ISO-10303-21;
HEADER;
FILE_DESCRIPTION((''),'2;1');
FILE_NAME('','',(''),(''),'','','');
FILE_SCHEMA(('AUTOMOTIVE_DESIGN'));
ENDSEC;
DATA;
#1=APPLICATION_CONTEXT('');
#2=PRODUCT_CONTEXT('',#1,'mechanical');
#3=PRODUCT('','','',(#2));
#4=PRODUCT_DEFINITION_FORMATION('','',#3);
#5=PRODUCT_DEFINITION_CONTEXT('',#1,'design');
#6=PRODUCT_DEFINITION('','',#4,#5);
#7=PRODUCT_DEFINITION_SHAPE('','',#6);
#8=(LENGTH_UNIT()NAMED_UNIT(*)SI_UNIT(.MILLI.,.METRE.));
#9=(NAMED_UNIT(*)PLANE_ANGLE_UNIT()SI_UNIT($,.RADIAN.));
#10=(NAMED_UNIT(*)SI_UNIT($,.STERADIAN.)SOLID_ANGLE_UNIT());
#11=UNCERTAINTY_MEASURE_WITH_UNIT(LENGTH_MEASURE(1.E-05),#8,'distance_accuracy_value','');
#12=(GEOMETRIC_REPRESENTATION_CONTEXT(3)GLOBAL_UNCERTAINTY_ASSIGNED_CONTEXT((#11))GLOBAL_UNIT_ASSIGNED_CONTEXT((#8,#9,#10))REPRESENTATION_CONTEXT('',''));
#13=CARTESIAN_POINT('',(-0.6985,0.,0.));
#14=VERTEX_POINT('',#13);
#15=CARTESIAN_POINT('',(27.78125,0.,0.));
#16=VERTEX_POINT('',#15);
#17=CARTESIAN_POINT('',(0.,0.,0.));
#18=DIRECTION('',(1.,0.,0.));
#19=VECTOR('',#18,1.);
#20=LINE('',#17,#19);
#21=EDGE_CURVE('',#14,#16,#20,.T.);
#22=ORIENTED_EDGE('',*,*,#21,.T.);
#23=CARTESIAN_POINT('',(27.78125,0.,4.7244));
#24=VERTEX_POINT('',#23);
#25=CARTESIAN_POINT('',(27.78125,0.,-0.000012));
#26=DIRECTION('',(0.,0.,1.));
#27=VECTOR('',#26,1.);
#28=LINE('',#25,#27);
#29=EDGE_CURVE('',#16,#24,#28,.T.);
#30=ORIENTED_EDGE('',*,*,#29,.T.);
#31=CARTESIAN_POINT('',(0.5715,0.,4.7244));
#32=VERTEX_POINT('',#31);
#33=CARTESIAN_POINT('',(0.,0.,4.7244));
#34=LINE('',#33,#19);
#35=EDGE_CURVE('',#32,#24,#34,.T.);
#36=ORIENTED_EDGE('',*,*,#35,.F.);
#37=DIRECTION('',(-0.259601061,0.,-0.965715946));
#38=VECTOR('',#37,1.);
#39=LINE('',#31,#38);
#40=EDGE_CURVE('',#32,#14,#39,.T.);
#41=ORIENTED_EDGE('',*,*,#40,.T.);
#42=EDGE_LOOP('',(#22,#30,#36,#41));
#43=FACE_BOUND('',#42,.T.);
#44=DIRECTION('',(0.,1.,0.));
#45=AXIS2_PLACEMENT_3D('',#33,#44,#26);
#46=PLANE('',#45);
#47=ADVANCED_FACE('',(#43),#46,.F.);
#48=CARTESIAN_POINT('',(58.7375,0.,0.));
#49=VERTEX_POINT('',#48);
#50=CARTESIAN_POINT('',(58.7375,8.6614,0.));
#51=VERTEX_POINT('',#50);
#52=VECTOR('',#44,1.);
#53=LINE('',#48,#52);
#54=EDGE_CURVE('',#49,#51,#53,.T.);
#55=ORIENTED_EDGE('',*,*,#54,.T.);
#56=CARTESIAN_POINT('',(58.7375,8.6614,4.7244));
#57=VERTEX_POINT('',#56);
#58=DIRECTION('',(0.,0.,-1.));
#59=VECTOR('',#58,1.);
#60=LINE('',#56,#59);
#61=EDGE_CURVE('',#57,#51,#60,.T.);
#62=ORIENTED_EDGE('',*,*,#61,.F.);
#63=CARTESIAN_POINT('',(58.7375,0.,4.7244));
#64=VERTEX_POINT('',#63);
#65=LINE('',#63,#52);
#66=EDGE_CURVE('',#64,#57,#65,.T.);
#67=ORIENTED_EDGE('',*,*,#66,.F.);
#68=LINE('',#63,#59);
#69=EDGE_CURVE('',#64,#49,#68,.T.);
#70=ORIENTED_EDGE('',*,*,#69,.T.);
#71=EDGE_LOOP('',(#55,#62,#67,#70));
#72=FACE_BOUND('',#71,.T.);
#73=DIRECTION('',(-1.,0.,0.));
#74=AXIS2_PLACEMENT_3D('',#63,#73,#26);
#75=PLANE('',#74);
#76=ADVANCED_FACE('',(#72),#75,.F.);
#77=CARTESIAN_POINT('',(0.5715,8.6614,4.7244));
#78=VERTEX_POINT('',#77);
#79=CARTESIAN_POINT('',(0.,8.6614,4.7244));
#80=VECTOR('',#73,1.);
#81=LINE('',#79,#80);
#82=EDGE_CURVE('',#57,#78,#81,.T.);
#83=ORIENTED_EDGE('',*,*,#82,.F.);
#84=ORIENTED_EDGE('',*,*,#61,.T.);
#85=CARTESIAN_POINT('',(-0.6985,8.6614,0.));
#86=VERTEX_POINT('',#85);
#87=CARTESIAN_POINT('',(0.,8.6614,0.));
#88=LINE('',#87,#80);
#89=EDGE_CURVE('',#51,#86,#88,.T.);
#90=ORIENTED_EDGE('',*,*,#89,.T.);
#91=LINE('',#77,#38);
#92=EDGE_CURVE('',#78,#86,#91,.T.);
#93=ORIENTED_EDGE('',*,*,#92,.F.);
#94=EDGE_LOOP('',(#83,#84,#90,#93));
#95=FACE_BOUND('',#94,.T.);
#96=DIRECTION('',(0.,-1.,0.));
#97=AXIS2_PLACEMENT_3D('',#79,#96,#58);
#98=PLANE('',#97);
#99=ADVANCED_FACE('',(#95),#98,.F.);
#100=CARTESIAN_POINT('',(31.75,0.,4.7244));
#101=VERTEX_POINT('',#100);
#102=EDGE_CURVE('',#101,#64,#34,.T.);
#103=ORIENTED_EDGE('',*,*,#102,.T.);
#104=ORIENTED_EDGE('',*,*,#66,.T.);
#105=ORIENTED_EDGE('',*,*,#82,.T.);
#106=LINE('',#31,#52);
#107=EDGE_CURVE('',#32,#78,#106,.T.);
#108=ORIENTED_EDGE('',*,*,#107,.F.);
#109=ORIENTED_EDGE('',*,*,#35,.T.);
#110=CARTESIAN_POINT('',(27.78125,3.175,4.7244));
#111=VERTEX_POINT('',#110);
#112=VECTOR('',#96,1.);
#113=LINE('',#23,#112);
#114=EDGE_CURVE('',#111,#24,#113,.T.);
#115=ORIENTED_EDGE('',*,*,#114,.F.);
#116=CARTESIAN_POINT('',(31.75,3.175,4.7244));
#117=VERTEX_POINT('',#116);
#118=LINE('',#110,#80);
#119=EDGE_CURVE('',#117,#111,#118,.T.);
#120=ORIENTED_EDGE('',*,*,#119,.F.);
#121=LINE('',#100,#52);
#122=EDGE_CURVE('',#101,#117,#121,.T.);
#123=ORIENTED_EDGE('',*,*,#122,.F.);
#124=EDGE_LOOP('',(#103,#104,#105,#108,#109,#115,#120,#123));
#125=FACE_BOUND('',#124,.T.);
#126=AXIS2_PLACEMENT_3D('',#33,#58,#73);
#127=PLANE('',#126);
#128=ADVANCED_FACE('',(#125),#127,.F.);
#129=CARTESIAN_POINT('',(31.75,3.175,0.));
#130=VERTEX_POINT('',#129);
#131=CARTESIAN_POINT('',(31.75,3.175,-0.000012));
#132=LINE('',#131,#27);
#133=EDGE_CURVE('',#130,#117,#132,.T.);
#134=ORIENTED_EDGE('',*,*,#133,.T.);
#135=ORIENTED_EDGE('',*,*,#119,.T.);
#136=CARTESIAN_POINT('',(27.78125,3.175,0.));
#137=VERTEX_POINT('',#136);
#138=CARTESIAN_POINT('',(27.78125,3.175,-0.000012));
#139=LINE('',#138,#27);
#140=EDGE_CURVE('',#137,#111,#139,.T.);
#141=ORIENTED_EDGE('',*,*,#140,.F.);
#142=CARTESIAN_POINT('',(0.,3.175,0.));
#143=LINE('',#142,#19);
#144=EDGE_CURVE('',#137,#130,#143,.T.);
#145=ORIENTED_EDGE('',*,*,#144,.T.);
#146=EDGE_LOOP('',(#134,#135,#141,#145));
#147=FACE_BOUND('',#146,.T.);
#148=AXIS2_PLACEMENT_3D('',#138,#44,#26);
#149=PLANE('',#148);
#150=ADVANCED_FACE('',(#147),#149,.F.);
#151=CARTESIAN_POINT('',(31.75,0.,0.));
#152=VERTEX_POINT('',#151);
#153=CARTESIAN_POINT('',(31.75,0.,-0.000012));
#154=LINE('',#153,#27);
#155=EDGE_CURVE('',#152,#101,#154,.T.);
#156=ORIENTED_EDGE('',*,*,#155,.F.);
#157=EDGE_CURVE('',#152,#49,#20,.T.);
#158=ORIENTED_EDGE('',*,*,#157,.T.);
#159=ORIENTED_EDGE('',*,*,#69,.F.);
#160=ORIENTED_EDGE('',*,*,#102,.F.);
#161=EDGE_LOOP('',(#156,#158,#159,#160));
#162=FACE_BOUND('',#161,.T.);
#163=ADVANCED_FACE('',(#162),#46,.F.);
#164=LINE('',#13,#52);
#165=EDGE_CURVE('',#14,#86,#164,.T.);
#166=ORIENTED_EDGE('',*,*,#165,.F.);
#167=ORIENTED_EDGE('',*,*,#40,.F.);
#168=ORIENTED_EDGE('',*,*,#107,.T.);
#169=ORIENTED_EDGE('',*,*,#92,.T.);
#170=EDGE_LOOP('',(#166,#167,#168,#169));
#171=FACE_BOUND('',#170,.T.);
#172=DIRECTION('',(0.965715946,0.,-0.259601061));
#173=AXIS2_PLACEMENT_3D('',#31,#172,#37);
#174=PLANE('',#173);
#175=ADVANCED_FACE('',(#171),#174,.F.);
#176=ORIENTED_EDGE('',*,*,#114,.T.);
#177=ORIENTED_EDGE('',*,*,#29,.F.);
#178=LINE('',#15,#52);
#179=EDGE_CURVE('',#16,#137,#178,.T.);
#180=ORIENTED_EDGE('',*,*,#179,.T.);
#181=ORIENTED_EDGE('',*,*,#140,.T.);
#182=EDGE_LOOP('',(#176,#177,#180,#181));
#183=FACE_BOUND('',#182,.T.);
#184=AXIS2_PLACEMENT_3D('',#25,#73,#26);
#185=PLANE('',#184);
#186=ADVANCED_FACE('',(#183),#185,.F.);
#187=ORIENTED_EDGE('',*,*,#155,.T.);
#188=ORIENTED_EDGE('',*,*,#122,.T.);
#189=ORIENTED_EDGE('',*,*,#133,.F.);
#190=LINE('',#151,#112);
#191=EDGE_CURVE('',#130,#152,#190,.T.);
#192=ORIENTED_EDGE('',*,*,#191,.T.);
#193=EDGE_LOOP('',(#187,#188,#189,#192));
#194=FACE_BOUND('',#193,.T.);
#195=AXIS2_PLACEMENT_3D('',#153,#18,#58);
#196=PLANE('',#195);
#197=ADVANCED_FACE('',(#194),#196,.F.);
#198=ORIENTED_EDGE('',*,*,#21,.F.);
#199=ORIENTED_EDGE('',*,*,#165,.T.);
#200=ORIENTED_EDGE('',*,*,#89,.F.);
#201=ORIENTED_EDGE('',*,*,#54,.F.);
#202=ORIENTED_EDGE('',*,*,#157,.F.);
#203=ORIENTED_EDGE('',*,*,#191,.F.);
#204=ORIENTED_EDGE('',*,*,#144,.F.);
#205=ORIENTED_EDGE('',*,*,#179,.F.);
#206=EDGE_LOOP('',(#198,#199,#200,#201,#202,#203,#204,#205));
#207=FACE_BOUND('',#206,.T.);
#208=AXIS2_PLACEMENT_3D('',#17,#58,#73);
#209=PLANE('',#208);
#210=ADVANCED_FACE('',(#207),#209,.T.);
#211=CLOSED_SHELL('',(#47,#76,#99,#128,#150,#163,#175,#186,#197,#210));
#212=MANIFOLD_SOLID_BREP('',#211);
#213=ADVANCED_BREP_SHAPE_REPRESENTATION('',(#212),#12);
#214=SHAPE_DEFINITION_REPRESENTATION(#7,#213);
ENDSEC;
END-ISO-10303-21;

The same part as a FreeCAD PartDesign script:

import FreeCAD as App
import Part
import Sketcher
from FreeCAD import Vector
Q = App.Units.Quantity


def add_polygon(sketch, points):
    """Adds a closed chain of lines whose ends are joined by coincident constraints."""
    first, n = sketch.GeometryCount, len(points)
    for a, b in zip(points, points[1:] + points[:1]):
        sketch.addGeometry(Part.LineSegment(App.Vector(*a, 0), App.Vector(*b, 0)), False)
    for i in range(n):
        sketch.addConstraint(Sketcher.Constraint("Coincident", first + i, 2, first + (i + 1) % n, 1))

doc = App.newDocument("Part")
body = doc.addObject("PartDesign::Body", "Body")

# Sketch on XY plane
sketch1 = doc.addObject("Sketcher::SketchObject", "Sketch")
body.addObject(sketch1)
sketch1.AttachmentSupport = (doc.XY_Plane, [""])
sketch1.MapMode = "FlatFace"
add_polygon(sketch1, [(0, 8.6614), (0, 0), (58.7375, 0), (58.7375, 8.6614)])  # lines 0-3
sketch1.addConstraint([
    Sketcher.Constraint("Vertical", 0),
    Sketcher.Constraint("Horizontal", 1),
    Sketcher.Constraint("Vertical", 2),
    Sketcher.Constraint("Horizontal", 3),
    Sketcher.Constraint("Coincident", 0, 2, -1, 1),
    Sketcher.Constraint("DistanceX", 1, 1, 1, 2, Q("2.3125 in")),
    Sketcher.Constraint("DistanceY", 0, 2, 0, 1, Q("0.341 in")),
])
pad1 = doc.addObject("PartDesign::Pad", "Pad")
body.addObject(pad1)
pad1.Profile = sketch1
pad1.Length = Q("0.186 in")

# Sketch on XY plane
sketch2 = doc.addObject("Sketcher::SketchObject", "Sketch001")
body.addObject(sketch2)
sketch2.AttachmentSupport = (doc.XY_Plane, [""])
sketch2.MapMode = "FlatFace"
add_polygon(sketch2, [(27.78125, 3.175), (27.78125, 0), (31.75, 0), (31.75, 3.175)])  # lines 0-3
sketch2.addConstraint([
    Sketcher.Constraint("Vertical", 0),
    Sketcher.Constraint("Horizontal", 1),
    Sketcher.Constraint("Vertical", 2),
    Sketcher.Constraint("Horizontal", 3),
    Sketcher.Constraint("PointOnObject", 0, 2, -1),
    Sketcher.Constraint("DistanceX", 1, 1, 1, 2, Q("0.15625 in")),
    Sketcher.Constraint("DistanceY", 0, 2, 0, 1, Q("0.125 in")),
    Sketcher.Constraint("DistanceX", -1, 1, 1, 2, Q("1.25 in")),
])
pocket1 = doc.addObject("PartDesign::Pocket", "Pocket")
body.addObject(pocket1)
pocket1.Profile = sketch2
pocket1.Type = "ThroughAll"
pocket1.Midplane = True

# Sketch on XZ plane
sketch3 = doc.addObject("Sketcher::SketchObject", "Sketch002")
body.addObject(sketch3)
sketch3.AttachmentSupport = (doc.XZ_Plane, [""])
sketch3.MapMode = "FlatFace"
sketch3.AttachmentOffset = App.Placement(Vector(0, 0, -0.341 * 25.4), App.Rotation())
add_polygon(sketch3, [(0, 4.7244), (0.5715, 4.7244), (0, 2.223247)])  # lines 0-2
sketch3.addConstraint([
    Sketcher.Constraint("Horizontal", 0),
    Sketcher.Constraint("Vertical", 2),
    Sketcher.Constraint("PointOnObject", 1, 2, -2),
    Sketcher.Constraint("DistanceX", 0, 1, 0, 2, Q("0.0225 in")),
    Sketcher.Constraint("DistanceY", -1, 1, 0, 2, Q("0.186 in")),
    Sketcher.Constraint("DistanceY", 2, 1, 2, 2, Q("2.501153 mm")),
])
pocket2 = doc.addObject("PartDesign::Pocket", "Pocket001")
body.addObject(pocket2)
pocket2.Profile = sketch3
pocket2.Type = "ThroughAll"
pocket2.Reversed = True

# Sketch on XZ plane
sketch4 = doc.addObject("Sketcher::SketchObject", "Sketch003")
body.addObject(sketch4)
sketch4.AttachmentSupport = (doc.XZ_Plane, [""])
sketch4.MapMode = "FlatFace"
sketch4.AttachmentOffset = App.Placement(Vector(0, 0, -0.341 * 25.4), App.Rotation())
add_polygon(sketch4, [(0.28575, 0), (-0.6985, 0), (0.5715, 4.7244)])  # lines 0-2
sketch4.addConstraint([
    Sketcher.Constraint("Horizontal", 0),
    Sketcher.Constraint("PointOnObject", 0, 2, -1),
    Sketcher.Constraint("DistanceX", 0, 2, 1, 2, Q("0.05 in")),
    Sketcher.Constraint("DistanceY", -1, 1, 1, 2, Q("0.186 in")),
    Sketcher.Constraint("DistanceX", 0, 2, -1, 1, Q("0.0275 in")),
    Sketcher.Constraint("DistanceX", 0, 2, 0, 1, Q("0.98425 mm")),
])
pad2 = doc.addObject("PartDesign::Pad", "Pad001")
body.addObject(pad2)
pad2.Profile = sketch4
pad2.Length = Q("0.341 in")

doc.recompute()
